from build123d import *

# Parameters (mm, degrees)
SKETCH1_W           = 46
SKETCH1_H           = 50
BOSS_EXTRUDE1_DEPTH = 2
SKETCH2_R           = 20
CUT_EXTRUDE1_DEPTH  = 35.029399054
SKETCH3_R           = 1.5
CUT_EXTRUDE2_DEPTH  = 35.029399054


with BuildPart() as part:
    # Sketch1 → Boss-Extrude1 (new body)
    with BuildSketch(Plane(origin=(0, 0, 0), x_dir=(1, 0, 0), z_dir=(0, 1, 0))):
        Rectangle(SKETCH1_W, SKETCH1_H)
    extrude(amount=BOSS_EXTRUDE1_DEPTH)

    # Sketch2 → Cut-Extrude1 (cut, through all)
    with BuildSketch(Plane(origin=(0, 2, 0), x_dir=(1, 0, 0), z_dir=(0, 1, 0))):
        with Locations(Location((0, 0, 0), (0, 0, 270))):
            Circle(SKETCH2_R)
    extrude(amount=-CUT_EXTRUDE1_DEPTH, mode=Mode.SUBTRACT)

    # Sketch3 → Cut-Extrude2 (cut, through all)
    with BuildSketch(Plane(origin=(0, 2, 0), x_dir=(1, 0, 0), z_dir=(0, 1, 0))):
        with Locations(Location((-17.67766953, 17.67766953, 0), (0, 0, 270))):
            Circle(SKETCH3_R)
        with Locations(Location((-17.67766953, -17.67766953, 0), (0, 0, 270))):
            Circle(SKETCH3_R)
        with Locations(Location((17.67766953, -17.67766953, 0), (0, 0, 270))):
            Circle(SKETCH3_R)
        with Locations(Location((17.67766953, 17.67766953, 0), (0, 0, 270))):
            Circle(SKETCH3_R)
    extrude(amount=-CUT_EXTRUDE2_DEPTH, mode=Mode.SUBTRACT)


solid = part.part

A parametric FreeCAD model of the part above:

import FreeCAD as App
import Part
import Sketcher

V = App.Vector


def add_polygon(sketch, points):
    """Adds a closed chain of lines whose ends are joined by coincident constraints."""
    first, n = sketch.GeometryCount, len(points)
    for a, b in zip(points, points[1:] + points[:1]):
        sketch.addGeometry(Part.LineSegment(App.Vector(*a, 0), App.Vector(*b, 0)), False)
    for i in range(n):
        sketch.addConstraint(Sketcher.Constraint("Coincident", first + i, 2, first + (i + 1) % n, 1))

doc = App.newDocument("Part")
params = doc.addObject("Spreadsheet::Sheet", "Params")
for row, (alias, value) in enumerate([
    ("sketch1_width", "46 mm"),
    ("sketch1_height", "50 mm"),
    ("pad1_length", "2 mm"),
    ("sketch2_diameter", "40 mm"),
    ("sketch3_diameter", "3 mm"),
], start=1):
    params.set(f"A{row}", alias)
    params.set(f"B{row}", "=" + value)
    params.setAlias(f"B{row}", alias)

body = doc.addObject("PartDesign::Body", "Body")

# Sketch on XZ plane
sketch1 = doc.addObject("Sketcher::SketchObject", "Sketch")
body.addObject(sketch1)
sketch1.AttachmentSupport = (doc.XZ_Plane, [""])
sketch1.MapMode = "FlatFace"
add_polygon(sketch1, [(-23, -25), (-23, 25), (23, 25), (23, -25)])  # lines 0-3
sketch1.addConstraint([
    Sketcher.Constraint("Vertical", 0),
    Sketcher.Constraint("Horizontal", 1),
    Sketcher.Constraint("Vertical", 2),
    Sketcher.Constraint("Horizontal", 3),
    Sketcher.Constraint("Symmetric", 0, 2, 2, 2, -1, 1),
    Sketcher.Constraint("DistanceX", 1, 1, 1, 2, 46.0),
    Sketcher.Constraint("DistanceY", 0, 1, 0, 2, 50.0),
])
sketch1.setExpression("Constraints[9]", "Params.sketch1_width")
sketch1.setExpression("Constraints[10]", "Params.sketch1_height")
pad1 = doc.addObject("PartDesign::Pad", "Pad")
body.addObject(pad1)
pad1.Profile = sketch1
pad1.setExpression("Length", "Params.pad1_length")
pad1.Reversed = True

# Sketch on XZ plane
sketch2 = doc.addObject("Sketcher::SketchObject", "Sketch001")
body.addObject(sketch2)
sketch2.AttachmentSupport = (doc.XZ_Plane, [""])
sketch2.MapMode = "FlatFace"
sketch2.AttachmentOffset = App.Placement(V(0, 0, -2), App.Rotation())
sketch2.addGeometry(Part.Circle(V(0, 0, 0), V(0, 0, 1), 20), False)
sketch2.addConstraint([
    Sketcher.Constraint("Coincident", 0, 3, -1, 1),
    Sketcher.Constraint("Diameter", 0, 40.0),
])
sketch2.setExpression("Constraints[1]", "Params.sketch2_diameter")
pocket1 = doc.addObject("PartDesign::Pocket", "Pocket")
body.addObject(pocket1)
pocket1.Profile = sketch2
pocket1.Type = "ThroughAll"
pocket1.Reversed = True

# Sketch on XZ plane
sketch3 = doc.addObject("Sketcher::SketchObject", "Sketch002")
body.addObject(sketch3)
sketch3.AttachmentSupport = (doc.XZ_Plane, [""])
sketch3.MapMode = "FlatFace"
sketch3.AttachmentOffset = App.Placement(V(0, 0, -2), App.Rotation())
sketch3.addGeometry([
    Part.Circle(V(-17.7, -17.7, 0), V(0, 0, 1), 1.5),
    Part.Circle(V(-17.7, 17.7, 0), V(0, 0, 1), 1.5),
    Part.Circle(V(17.7, 17.7, 0), V(0, 0, 1), 1.5),
    Part.Circle(V(17.7, -17.7, 0), V(0, 0, 1), 1.5),
], False)
sketch3.addConstraint([
    Sketcher.Constraint("Equal", 0, 1),
    Sketcher.Constraint("Equal", 1, 2),
    Sketcher.Constraint("Equal", 2, 3),
    Sketcher.Constraint("Symmetric", 0, 3, 2, 3, -1, 1),
    Sketcher.Constraint("Symmetric", 1, 3, 3, 3, -1, 1),
    Sketcher.Constraint("Symmetric", 1, 3, 2, 3, -2),
    Sketcher.Constraint("Diameter", 0, 3.0),
    Sketcher.Constraint("DistanceX", 0, 3, -1, 1, 17.67767),
    Sketcher.Constraint("DistanceY", 0, 3, -1, 1, 17.67767),
])
sketch3.setExpression("Constraints[6]", "Params.sketch3_diameter")
pocket2 = doc.addObject("PartDesign::Pocket", "Pocket001")
body.addObject(pocket2)
pocket2.Profile = sketch3
pocket2.Type = "ThroughAll"
pocket2.Reversed = True

doc.recompute()
